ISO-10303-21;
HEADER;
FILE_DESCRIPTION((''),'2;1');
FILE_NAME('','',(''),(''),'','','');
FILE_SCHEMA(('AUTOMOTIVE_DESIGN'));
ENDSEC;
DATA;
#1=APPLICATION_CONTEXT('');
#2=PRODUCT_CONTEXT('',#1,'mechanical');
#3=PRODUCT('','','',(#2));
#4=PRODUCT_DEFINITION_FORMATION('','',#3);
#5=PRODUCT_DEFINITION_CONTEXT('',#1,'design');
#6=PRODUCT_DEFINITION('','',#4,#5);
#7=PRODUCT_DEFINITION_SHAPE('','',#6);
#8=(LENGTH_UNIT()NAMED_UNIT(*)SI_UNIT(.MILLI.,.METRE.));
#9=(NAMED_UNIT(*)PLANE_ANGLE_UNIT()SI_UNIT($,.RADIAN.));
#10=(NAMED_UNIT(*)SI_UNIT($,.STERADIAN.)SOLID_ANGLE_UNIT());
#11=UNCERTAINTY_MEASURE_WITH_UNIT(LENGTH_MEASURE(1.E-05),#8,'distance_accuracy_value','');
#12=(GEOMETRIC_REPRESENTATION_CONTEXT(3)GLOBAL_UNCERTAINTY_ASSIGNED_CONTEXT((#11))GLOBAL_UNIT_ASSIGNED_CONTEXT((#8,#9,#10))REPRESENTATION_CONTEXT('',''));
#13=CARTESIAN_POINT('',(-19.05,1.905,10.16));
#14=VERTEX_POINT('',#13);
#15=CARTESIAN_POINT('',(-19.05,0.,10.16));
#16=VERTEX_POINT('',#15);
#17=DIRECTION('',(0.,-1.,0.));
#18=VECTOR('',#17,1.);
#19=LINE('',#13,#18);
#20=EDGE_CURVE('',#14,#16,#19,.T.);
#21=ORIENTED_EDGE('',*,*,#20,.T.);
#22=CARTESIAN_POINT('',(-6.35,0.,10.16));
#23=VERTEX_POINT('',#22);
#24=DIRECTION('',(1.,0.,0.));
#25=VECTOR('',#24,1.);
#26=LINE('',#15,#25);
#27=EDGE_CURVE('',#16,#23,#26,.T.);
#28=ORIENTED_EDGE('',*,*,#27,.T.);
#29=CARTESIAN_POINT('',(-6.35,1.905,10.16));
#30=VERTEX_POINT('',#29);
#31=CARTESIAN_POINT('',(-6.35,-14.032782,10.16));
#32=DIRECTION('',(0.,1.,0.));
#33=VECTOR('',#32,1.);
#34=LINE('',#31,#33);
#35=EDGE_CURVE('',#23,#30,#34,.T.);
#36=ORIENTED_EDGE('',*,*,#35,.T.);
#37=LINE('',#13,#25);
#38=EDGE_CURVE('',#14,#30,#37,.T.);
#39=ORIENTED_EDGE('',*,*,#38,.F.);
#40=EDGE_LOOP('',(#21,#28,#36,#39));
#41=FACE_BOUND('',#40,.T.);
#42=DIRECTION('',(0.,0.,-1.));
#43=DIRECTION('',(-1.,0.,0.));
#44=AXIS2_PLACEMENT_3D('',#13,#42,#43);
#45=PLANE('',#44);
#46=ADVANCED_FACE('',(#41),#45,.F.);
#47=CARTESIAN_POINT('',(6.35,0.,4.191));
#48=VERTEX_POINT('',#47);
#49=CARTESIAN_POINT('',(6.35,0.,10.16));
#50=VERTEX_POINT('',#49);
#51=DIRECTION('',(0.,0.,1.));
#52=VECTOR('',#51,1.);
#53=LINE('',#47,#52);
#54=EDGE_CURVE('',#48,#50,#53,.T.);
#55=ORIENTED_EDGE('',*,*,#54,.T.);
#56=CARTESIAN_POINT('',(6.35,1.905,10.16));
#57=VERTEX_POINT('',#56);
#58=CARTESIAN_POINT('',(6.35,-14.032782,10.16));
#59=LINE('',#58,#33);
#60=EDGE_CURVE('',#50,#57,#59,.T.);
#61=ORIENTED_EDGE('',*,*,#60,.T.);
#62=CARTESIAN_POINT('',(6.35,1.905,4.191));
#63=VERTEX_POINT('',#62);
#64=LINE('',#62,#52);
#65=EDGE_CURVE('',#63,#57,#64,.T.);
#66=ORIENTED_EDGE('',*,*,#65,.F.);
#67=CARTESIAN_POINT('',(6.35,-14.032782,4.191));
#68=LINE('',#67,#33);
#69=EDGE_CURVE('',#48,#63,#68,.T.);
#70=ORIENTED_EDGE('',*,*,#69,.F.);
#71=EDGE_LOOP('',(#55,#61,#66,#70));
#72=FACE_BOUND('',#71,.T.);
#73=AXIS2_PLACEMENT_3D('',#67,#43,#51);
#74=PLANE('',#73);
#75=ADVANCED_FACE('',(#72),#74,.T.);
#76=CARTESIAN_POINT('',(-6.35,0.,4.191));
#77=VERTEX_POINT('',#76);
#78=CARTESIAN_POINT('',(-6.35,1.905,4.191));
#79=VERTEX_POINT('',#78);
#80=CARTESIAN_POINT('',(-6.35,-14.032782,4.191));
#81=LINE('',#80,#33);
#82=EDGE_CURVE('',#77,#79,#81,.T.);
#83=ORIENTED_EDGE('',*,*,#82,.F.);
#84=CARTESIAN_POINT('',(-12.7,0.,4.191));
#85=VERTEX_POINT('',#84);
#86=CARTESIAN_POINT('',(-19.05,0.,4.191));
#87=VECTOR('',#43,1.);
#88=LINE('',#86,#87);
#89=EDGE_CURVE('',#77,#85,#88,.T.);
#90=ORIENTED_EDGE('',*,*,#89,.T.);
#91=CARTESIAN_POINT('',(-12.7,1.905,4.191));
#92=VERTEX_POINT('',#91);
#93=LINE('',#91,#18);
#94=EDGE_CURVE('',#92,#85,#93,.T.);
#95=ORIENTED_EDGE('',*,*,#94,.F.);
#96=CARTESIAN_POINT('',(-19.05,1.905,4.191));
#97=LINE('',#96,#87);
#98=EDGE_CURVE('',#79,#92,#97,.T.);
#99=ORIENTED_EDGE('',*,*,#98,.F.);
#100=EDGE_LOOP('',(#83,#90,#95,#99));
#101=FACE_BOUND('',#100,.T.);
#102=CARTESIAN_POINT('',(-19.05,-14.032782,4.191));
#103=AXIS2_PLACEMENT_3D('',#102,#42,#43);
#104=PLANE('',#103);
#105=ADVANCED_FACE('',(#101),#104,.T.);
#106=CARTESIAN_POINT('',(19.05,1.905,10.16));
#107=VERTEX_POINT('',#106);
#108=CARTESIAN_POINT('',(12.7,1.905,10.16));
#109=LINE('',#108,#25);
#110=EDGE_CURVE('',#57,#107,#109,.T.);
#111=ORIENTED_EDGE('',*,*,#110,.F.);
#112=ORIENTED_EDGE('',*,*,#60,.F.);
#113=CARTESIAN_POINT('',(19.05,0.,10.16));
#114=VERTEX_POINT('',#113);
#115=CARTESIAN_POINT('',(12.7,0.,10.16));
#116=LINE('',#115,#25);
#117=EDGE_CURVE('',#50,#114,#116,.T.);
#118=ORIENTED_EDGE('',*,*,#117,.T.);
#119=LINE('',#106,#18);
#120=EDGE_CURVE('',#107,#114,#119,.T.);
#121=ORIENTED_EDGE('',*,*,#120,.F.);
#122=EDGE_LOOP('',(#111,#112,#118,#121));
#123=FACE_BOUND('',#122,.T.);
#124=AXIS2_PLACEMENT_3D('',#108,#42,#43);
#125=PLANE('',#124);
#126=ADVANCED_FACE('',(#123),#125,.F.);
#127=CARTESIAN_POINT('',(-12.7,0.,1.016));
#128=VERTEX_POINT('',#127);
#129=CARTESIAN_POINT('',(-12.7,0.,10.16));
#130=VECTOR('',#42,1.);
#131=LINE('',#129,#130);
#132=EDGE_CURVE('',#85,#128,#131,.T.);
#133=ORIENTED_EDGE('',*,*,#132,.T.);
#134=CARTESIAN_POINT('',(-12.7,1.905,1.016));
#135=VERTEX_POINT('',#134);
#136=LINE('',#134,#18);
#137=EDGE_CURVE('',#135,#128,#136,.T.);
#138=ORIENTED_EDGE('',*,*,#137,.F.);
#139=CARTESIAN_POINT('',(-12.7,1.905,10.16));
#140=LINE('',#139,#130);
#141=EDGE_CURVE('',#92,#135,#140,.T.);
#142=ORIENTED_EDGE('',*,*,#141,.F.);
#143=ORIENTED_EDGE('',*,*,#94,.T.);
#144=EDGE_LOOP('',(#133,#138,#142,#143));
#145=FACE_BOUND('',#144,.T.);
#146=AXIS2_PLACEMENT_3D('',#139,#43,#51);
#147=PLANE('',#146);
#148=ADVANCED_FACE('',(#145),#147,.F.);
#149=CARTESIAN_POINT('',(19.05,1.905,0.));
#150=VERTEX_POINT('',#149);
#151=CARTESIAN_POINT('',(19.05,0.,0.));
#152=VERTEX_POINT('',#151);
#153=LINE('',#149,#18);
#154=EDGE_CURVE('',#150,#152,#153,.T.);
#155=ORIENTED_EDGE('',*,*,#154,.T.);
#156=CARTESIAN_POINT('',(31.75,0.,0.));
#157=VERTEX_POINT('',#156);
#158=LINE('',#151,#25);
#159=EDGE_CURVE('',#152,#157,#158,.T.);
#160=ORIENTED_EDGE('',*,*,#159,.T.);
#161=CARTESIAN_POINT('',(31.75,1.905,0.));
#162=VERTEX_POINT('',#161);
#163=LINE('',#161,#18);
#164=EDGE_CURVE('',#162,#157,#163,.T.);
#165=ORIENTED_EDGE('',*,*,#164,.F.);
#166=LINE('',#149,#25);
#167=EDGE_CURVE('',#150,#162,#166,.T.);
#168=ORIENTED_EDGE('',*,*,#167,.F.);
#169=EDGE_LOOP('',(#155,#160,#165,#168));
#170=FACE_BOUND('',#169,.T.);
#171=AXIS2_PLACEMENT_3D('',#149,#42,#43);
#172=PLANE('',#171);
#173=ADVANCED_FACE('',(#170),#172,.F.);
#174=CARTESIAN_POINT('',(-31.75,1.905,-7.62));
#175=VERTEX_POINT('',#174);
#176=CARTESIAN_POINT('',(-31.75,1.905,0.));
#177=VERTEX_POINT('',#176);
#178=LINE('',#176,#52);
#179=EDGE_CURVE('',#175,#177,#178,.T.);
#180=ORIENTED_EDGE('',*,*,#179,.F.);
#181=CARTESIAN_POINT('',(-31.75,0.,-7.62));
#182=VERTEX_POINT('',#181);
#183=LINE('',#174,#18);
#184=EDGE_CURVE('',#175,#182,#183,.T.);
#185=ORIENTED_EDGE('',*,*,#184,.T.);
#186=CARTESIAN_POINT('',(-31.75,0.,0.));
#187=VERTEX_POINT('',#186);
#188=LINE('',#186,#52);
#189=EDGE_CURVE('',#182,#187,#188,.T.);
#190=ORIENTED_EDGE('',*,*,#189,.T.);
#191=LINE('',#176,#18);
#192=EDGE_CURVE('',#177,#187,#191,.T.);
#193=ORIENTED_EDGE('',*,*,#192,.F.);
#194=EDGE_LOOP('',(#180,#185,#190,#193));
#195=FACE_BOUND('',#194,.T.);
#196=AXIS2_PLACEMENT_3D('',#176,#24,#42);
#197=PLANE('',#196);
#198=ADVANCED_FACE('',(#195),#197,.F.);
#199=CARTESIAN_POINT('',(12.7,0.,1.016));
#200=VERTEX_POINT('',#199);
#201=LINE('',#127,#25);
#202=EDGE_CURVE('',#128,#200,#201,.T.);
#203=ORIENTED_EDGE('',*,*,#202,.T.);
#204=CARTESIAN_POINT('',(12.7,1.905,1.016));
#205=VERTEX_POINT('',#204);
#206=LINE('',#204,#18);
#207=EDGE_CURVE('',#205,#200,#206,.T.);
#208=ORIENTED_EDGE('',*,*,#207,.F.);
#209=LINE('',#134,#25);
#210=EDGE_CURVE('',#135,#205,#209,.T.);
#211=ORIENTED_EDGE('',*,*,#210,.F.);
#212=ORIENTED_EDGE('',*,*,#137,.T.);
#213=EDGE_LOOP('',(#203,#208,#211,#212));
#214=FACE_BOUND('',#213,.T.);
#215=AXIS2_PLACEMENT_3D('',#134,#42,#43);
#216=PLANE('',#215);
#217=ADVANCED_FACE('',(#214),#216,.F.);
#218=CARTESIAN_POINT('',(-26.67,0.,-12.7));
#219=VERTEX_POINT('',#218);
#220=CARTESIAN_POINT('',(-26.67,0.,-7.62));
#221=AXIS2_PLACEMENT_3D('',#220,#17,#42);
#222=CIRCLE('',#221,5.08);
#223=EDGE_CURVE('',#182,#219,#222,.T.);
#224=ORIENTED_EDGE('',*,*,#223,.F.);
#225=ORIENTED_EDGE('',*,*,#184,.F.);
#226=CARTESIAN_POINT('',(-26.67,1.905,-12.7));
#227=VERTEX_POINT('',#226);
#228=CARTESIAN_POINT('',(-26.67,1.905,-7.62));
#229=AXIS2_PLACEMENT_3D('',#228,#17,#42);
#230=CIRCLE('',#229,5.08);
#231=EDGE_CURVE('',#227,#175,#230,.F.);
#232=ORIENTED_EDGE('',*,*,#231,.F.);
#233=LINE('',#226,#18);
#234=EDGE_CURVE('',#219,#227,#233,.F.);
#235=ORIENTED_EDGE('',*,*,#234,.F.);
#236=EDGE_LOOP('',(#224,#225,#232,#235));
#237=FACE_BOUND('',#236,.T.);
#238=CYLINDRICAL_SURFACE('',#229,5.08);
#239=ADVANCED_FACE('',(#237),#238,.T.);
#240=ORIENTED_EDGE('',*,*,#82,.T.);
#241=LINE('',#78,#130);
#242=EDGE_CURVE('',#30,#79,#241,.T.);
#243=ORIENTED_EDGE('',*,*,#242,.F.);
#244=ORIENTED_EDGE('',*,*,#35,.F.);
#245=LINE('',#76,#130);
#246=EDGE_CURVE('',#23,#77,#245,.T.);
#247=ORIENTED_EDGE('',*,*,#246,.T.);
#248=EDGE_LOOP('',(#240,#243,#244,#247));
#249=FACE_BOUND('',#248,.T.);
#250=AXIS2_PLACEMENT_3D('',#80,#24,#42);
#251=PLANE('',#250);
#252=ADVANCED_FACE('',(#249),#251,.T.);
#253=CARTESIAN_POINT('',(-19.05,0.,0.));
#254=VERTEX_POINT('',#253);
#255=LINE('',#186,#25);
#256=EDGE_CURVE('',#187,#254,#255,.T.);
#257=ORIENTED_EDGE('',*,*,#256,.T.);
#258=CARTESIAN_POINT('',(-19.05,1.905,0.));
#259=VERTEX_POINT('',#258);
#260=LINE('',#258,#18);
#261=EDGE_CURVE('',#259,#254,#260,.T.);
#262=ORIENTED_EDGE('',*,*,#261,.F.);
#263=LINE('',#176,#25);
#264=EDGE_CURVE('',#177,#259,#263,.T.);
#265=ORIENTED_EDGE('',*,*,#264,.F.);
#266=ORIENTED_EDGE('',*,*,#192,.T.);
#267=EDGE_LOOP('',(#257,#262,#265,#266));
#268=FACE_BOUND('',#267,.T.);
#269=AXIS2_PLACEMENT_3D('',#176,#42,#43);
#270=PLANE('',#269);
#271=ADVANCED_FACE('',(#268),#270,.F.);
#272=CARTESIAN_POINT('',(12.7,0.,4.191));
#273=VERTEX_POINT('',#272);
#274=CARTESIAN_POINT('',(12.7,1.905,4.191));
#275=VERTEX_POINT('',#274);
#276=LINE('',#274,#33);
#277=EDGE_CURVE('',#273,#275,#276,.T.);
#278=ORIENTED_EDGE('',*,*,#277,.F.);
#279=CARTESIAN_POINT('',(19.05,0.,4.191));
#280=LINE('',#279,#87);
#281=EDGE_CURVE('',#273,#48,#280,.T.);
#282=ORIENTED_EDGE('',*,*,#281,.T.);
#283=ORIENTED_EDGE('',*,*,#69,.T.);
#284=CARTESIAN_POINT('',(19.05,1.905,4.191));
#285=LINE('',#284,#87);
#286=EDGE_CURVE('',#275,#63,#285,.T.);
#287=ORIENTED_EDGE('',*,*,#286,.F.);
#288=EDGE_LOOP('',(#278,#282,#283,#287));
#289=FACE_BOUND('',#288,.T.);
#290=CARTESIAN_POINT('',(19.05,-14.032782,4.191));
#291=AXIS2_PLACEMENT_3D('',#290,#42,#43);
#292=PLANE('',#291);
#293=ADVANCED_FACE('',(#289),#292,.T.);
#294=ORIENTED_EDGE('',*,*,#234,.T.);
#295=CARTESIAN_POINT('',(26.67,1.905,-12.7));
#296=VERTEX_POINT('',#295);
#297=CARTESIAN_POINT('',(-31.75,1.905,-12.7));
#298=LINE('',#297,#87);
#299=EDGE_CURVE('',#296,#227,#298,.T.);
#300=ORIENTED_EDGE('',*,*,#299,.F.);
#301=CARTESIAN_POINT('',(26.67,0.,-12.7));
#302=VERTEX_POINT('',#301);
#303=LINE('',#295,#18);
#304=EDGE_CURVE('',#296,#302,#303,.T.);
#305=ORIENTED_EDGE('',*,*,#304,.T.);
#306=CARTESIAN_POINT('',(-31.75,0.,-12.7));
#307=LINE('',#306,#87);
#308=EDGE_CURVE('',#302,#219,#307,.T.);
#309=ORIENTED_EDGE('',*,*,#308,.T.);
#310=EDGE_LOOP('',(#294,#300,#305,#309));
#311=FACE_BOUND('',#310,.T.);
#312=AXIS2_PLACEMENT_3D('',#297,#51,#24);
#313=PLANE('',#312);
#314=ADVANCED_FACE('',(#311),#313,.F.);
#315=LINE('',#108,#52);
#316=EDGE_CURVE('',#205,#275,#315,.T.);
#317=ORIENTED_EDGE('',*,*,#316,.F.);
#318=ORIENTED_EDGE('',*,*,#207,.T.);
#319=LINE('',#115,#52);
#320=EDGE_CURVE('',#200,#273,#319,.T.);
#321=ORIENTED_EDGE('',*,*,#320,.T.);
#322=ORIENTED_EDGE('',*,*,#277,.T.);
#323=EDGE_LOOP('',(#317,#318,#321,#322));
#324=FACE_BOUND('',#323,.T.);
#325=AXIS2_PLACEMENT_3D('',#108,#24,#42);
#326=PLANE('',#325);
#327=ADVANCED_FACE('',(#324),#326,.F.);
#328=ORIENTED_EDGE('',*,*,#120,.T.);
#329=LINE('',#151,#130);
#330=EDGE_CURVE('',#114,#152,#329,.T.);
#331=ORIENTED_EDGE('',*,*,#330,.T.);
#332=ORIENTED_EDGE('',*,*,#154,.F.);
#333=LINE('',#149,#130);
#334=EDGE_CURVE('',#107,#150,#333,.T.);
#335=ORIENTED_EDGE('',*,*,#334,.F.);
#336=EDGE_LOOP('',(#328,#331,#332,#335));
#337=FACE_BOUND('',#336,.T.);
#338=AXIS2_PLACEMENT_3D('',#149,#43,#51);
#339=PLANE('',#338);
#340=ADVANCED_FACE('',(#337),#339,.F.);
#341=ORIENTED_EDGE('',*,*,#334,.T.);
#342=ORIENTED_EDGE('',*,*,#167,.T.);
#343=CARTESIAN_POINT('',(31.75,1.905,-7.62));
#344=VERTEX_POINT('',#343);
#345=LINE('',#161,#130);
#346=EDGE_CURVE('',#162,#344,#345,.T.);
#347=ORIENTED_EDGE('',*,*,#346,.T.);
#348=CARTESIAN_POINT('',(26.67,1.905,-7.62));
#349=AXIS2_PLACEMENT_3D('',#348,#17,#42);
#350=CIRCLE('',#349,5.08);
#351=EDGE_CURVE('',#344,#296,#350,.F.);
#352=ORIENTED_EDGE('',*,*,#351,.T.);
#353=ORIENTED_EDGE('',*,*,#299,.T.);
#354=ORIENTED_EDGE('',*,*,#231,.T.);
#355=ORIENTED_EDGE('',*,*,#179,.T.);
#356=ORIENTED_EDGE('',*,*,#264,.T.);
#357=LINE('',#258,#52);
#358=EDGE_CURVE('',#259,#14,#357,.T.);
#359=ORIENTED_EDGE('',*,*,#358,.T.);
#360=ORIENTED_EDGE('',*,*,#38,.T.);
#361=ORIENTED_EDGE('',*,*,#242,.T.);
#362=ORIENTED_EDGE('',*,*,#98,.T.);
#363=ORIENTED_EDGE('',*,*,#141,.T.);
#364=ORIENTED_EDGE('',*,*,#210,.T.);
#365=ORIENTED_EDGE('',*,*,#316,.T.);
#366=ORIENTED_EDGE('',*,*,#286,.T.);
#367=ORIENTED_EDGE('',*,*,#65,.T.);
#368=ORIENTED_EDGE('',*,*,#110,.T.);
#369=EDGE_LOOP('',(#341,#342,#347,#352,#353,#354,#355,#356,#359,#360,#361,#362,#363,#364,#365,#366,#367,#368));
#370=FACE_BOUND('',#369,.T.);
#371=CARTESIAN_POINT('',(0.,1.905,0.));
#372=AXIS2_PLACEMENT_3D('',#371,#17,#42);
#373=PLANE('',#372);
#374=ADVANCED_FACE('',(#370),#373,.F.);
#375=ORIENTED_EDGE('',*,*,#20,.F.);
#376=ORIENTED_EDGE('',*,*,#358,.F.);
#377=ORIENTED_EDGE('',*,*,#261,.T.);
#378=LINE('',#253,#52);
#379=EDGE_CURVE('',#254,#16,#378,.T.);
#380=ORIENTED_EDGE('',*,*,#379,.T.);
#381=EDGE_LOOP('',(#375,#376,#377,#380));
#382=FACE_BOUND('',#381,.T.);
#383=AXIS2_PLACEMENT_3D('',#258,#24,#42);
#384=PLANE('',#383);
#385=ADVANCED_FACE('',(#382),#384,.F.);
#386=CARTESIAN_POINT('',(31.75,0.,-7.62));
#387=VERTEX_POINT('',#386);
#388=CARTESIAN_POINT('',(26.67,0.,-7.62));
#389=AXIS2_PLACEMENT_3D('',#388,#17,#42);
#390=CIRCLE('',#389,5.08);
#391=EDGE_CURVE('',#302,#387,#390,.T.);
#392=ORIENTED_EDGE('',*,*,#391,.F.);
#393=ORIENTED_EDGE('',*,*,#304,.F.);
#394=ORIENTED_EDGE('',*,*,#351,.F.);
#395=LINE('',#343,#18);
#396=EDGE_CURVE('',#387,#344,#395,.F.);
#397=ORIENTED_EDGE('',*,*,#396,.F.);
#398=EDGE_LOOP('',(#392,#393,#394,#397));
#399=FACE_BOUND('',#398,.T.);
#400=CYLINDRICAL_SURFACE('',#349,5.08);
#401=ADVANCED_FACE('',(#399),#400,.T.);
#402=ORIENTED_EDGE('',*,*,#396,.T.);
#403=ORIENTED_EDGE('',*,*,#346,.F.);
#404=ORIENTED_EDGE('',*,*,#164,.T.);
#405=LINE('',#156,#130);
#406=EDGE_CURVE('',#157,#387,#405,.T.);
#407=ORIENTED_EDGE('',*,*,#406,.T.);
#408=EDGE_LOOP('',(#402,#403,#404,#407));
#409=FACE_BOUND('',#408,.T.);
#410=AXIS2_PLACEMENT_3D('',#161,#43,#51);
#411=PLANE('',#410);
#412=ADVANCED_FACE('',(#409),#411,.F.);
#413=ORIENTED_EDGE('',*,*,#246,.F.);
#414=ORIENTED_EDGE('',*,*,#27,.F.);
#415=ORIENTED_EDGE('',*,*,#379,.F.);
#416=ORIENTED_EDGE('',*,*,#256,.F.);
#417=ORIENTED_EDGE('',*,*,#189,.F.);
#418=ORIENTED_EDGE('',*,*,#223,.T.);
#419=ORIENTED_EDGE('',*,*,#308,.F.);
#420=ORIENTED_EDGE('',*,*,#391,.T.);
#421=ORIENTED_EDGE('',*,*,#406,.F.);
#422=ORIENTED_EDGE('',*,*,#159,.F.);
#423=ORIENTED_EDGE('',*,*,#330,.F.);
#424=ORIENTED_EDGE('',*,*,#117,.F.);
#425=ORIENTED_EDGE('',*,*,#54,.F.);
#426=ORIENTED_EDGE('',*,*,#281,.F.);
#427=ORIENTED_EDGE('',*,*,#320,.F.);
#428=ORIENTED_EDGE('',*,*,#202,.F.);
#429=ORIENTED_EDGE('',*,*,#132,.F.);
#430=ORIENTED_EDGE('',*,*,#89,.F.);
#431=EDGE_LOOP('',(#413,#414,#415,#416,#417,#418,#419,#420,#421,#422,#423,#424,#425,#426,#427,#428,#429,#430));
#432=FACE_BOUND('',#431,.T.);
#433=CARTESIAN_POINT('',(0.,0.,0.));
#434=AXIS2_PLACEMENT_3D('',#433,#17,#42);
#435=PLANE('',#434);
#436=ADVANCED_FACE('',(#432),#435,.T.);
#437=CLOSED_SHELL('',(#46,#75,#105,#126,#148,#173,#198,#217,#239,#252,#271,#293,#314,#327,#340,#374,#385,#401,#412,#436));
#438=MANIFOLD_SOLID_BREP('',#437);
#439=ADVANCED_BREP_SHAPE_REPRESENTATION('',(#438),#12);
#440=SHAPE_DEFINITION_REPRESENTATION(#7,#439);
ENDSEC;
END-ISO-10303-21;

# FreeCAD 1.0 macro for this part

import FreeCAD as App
import Part
import Sketcher

V = App.Vector
Q = App.Units.Quantity


def edges_at(feature, points):
    """Names of the edges that pass closest to the given points."""
    edges = feature.Shape.Edges
    near = lambda p: min(range(len(edges)), key=lambda i: edges[i].distToShape(Part.Vertex(*p))[0])
    return sorted({f"Edge{near(p) + 1}" for p in points})


def add_polygon(sketch, points):
    """Adds a closed chain of lines whose ends are joined by coincident constraints."""
    first, n = sketch.GeometryCount, len(points)
    for a, b in zip(points, points[1:] + points[:1]):
        sketch.addGeometry(Part.LineSegment(App.Vector(*a, 0), App.Vector(*b, 0)), False)
    for i in range(n):
        sketch.addConstraint(Sketcher.Constraint("Coincident", first + i, 2, first + (i + 1) % n, 1))

doc = App.newDocument("Part")
body = doc.addObject("PartDesign::Body", "Body")

sketch1 = doc.addObject("Sketcher::SketchObject", "Sketch")
body.addObject(sketch1)
sketch1.AttachmentSupport = (doc.XZ_Plane, [""])
sketch1.MapMode = "FlatFace"
add_polygon(sketch1, [(19, 0), (32, 0), (32, -13), (-32, -13), (-32, 0), (-19, 0), (-19, 10), (-13, 10), (-13, 1), (13, 1), (13, 10), (19, 10)])
sketch1.addConstraint([
    Sketcher.Constraint("Horizontal", 0),
    Sketcher.Constraint("Vertical", 1),
    Sketcher.Constraint("Horizontal", 2),
    Sketcher.Constraint("Vertical", 3),
    Sketcher.Constraint("Horizontal", 4),
    Sketcher.Constraint("Vertical", 5),
    Sketcher.Constraint("Horizontal", 6),
    Sketcher.Constraint("Vertical", 7),
    Sketcher.Constraint("Horizontal", 8),
    Sketcher.Constraint("Vertical", 9),
    Sketcher.Constraint("Horizontal", 10),
    Sketcher.Constraint("Vertical", 11),
    Sketcher.Constraint("Symmetric", 0, 2, 3, 2, -1, 1),
    Sketcher.Constraint("Symmetric", 6, 2, 9, 2, -2),
    Sketcher.Constraint("Symmetric", 4, 2, 11, 2, -2),
    Sketcher.Constraint("Equal", 4, 1),
    Sketcher.Constraint("DistanceX", 8, 1, 8, 2, Q("1 in")),
    Sketcher.Constraint("DistanceX", 0, 1, 0, 2, Q("0.5 in")),
    Sketcher.Constraint("DistanceX", 2, 2, 2, 1, Q("2.5 in")),
    Sketcher.Constraint("DistanceY", 5, 1, 5, 2, Q("0.4 in")),
    Sketcher.Constraint("DistanceY", 7, 2, 7, 1, Q("0.36 in")),
])
pad1 = doc.addObject("PartDesign::Pad", "Pad")
body.addObject(pad1)
pad1.Profile = sketch1
pad1.Length = Q("0.075 in")
pad1.Reversed = True
doc.recompute()

fillet = doc.addObject("PartDesign::Fillet", "Fillet")
body.addObject(fillet)
fillet.Base = (pad1, edges_at(pad1, [(-31.75, 0.953, -12.7), (31.75, 0.953, -12.7)]))
fillet.Radius = Q("0.2 in")

sketch2 = doc.addObject("Sketcher::SketchObject", "Sketch001")
body.addObject(sketch2)
sketch2.AttachmentSupport = (doc.XZ_Plane, [""])
sketch2.MapMode = "FlatFace"
sketch2.AttachmentOffset = App.Placement(V(0, 0, -0.075 * 25.4), App.Rotation())
add_polygon(sketch2, [(-19, 4), (-19, 10), (-6, 10), (-6, 4)])
add_polygon(sketch2, [(6, 4), (6, 10), (19, 10), (19, 4)])
sketch2.addConstraint([
    Sketcher.Constraint("Vertical", 0),
    Sketcher.Constraint("Horizontal", 1),
    Sketcher.Constraint("Vertical", 2),
    Sketcher.Constraint("Horizontal", 3),
    Sketcher.Constraint("Vertical", 4),
    Sketcher.Constraint("Horizontal", 5),
    Sketcher.Constraint("Vertical", 6),
    Sketcher.Constraint("Horizontal", 7),
    Sketcher.Constraint("Symmetric", 1, 2, 4, 2, -2),
    Sketcher.Constraint("Symmetric", 3, 2, 6, 2, -2),
    Sketcher.Constraint("DistanceX", 1, 1, 1, 2, Q("0.5 in")),
    Sketcher.Constraint("DistanceX", 0, 2, 4, 2, Q("1 in")),
    Sketcher.Constraint("DistanceY", -1, 1, 0, 2, Q("0.4 in")),
    Sketcher.Constraint("DistanceY", 0, 1, 0, 2, Q("0.235 in")),
])
pad2 = doc.addObject("PartDesign::Pad", "Pad001")
body.addObject(pad2)
pad2.Profile = sketch2
pad2.Length = Q("0.075 in")

doc.recompute()
